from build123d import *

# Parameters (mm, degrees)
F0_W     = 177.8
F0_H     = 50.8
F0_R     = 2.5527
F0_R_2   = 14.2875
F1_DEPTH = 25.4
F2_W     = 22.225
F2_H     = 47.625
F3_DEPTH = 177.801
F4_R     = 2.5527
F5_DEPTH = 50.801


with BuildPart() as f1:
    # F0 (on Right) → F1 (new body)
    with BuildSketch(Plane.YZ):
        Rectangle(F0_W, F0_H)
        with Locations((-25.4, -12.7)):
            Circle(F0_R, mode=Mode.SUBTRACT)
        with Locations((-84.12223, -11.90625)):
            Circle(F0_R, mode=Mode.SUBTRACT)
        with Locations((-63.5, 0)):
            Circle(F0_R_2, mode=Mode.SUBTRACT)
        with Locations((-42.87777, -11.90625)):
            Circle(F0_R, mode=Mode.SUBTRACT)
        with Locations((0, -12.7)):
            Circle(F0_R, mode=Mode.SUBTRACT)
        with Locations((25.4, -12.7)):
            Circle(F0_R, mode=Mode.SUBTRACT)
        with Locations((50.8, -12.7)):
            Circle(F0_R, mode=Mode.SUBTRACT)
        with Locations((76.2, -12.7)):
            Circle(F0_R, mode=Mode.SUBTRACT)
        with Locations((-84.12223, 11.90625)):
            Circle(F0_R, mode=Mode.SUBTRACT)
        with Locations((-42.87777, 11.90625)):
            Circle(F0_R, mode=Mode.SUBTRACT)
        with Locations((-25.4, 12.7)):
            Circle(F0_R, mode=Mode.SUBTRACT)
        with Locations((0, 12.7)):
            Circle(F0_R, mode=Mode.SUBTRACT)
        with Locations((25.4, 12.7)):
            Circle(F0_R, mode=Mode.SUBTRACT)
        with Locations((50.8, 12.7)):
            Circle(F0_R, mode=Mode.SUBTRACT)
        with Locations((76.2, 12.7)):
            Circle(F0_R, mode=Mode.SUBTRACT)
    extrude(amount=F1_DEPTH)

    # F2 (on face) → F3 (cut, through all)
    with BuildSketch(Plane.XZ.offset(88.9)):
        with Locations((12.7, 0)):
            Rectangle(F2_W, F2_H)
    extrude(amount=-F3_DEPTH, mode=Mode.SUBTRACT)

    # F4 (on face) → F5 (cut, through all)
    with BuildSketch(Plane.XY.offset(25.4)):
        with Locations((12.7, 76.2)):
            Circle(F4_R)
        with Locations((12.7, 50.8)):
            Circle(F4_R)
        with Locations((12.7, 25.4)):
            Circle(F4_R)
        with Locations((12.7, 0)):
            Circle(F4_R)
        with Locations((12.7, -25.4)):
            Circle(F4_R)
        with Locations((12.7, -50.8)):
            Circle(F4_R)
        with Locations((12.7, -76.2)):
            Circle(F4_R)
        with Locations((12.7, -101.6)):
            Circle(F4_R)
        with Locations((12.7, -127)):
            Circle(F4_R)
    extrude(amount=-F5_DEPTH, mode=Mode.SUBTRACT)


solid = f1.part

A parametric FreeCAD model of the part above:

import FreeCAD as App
import Part
import Sketcher
from FreeCAD import Vector
Q = App.Units.Quantity

doc = App.newDocument("Part")
body = doc.addObject("PartDesign::Body", "Body")

sketch1 = doc.addObject("Sketcher::SketchObject", "Sketch")
body.addObject(sketch1)
sketch1.AttachmentSupport = (doc.YZ_Plane, [""])
sketch1.MapMode = "FlatFace"
sketch1.addGeometry([
    Part.LineSegment(Vector(-88.9, 25.4, 0), Vector(-88.9, -25.4, 0)),
    Part.LineSegment(Vector(-88.9, -25.4, 0), Vector(88.9, -25.4, 0)),
    Part.LineSegment(Vector(88.9, -25.4, 0), Vector(88.9, 25.4, 0)),
    Part.LineSegment(Vector(88.9, 25.4, 0), Vector(-88.9, 25.4, 0)),
    Part.Circle(Vector(-84.1, -11.9, 0), Vector(0, 0, 1), 2.6),
    Part.Circle(Vector(-42.9, -11.9, 0), Vector(0, 0, 1), 2.6),
    Part.Circle(Vector(-25.4, -12.7, 0), Vector(0, 0, 1), 2.6),
    Part.Circle(Vector(0, -12.7, 0), Vector(0, 0, 1), 2.6),
    Part.Circle(Vector(25.4, -12.7, 0), Vector(0, 0, 1), 2.6),
    Part.Circle(Vector(50.8, -12.7, 0), Vector(0, 0, 1), 2.6),
    Part.Circle(Vector(76.2, -12.7, 0), Vector(0, 0, 1), 2.6),
    Part.Circle(Vector(-63.5, 0, 0), Vector(0, 0, 1), 14.3),
    Part.Circle(Vector(-84.1, 11.9, 0), Vector(0, 0, 1), 2.6),
    Part.Circle(Vector(-42.9, 11.9, 0), Vector(0, 0, 1), 2.6),
    Part.Circle(Vector(-25.4, 12.7, 0), Vector(0, 0, 1), 2.6),
    Part.Circle(Vector(0, 12.7, 0), Vector(0, 0, 1), 2.6),
    Part.Circle(Vector(25.4, 12.7, 0), Vector(0, 0, 1), 2.6),
    Part.Circle(Vector(50.8, 12.7, 0), Vector(0, 0, 1), 2.6),
    Part.Circle(Vector(76.2, 12.7, 0), Vector(0, 0, 1), 2.6),
], False)
sketch1.addConstraint([
    Sketcher.Constraint("Coincident", 0, 2, 1, 1),
    Sketcher.Constraint("Coincident", 1, 2, 2, 1),
    Sketcher.Constraint("Coincident", 2, 2, 3, 1),
    Sketcher.Constraint("Coincident", 3, 2, 0, 1),
    Sketcher.Constraint("Vertical", 0),
    Sketcher.Constraint("Horizontal", 1),
    Sketcher.Constraint("Vertical", 2),
    Sketcher.Constraint("Horizontal", 3),
    Sketcher.Constraint("Equal", 4, 5),
    Sketcher.Constraint("Equal", 5, 6),
    Sketcher.Constraint("Equal", 6, 7),
    Sketcher.Constraint("Equal", 7, 8),
    Sketcher.Constraint("Equal", 8, 9),
    Sketcher.Constraint("Equal", 9, 10),
    Sketcher.Constraint("Equal", 10, 12),
    Sketcher.Constraint("Equal", 12, 13),
    Sketcher.Constraint("Equal", 13, 14),
    Sketcher.Constraint("Equal", 14, 15),
    Sketcher.Constraint("Equal", 15, 16),
    Sketcher.Constraint("Equal", 16, 17),
    Sketcher.Constraint("Equal", 17, 18),
    Sketcher.Constraint("Symmetric", 8, 3, 14, 3, -1, 1),
    Sketcher.Constraint("Symmetric", 7, 3, 15, 3, -1, 1),
    Sketcher.Constraint("Symmetric", 6, 3, 16, 3, -1, 1),
    Sketcher.Constraint("Symmetric", 0, 2, 2, 2, -1, 1),
    Sketcher.Constraint("Symmetric", 6, 3, 8, 3, -2),
    Sketcher.Constraint("Symmetric", 4, 3, 12, 3, -1),
    Sketcher.Constraint("Symmetric", 5, 3, 13, 3, -1),
    Sketcher.Constraint("Symmetric", 9, 3, 17, 3, -1),
    Sketcher.Constraint("Symmetric", 10, 3, 18, 3, -1),
    Sketcher.Constraint("PointOnObject", 7, 3, -2),
    Sketcher.Constraint("PointOnObject", 11, 3, -1),
    Sketcher.Constraint("Horizontal", 4, 3, 5, 3),
    Sketcher.Constraint("Horizontal", 6, 3, 7, 3),
    Sketcher.Constraint("Horizontal", 8, 3, 9, 3),
    Sketcher.Constraint("Horizontal", 9, 3, 10, 3),
    Sketcher.Constraint("DistanceX", 1, 1, 1, 2, Q("7 in")),
    Sketcher.Constraint("DistanceY", 0, 2, 0, 1, Q("2 in")),
    Sketcher.Constraint("Diameter", 4, Q("0.201 in")),
    Sketcher.Constraint("Diameter", 11, Q("1.125 in")),
    Sketcher.Constraint("DistanceX", 6, 3, -1, 1, Q("1 in")),
    Sketcher.Constraint("DistanceX", -1, 1, 9, 3, Q("2 in")),
    Sketcher.Constraint("DistanceX", -1, 1, 10, 3, Q("3 in")),
    Sketcher.Constraint("DistanceY", 6, 3, 14, 3, Q("1 in")),
    Sketcher.Constraint("DistanceX", 0, 2, 11, 3, Q("1 in")),
    Sketcher.Constraint("DistanceY", 4, 3, -1, 1, Q("0.46875 in")),
    Sketcher.Constraint("DistanceX", 4, 3, -1, 1, 84.12223),
    Sketcher.Constraint("DistanceX", 5, 3, -1, 1, 42.87777),
])
pad1 = doc.addObject("PartDesign::Pad", "Pad")
body.addObject(pad1)
pad1.Profile = sketch1
pad1.Length = Q("1 in")

sketch2 = doc.addObject("Sketcher::SketchObject", "Sketch001")
body.addObject(sketch2)
sketch2.AttachmentSupport = (doc.XZ_Plane, [""])
sketch2.MapMode = "FlatFace"
sketch2.AttachmentOffset = App.Placement(Vector(0, 0, 3.5 * 25.4), App.Rotation())
sketch2.addGeometry([
    Part.LineSegment(Vector(2, 24, 0), Vector(2, -24, 0)),
    Part.LineSegment(Vector(2, -24, 0), Vector(24, -24, 0)),
    Part.LineSegment(Vector(24, -24, 0), Vector(24, 24, 0)),
    Part.LineSegment(Vector(24, 24, 0), Vector(2, 24, 0)),
], False)
sketch2.addConstraint([
    Sketcher.Constraint("Coincident", 0, 2, 1, 1),
    Sketcher.Constraint("Coincident", 1, 2, 2, 1),
    Sketcher.Constraint("Coincident", 2, 2, 3, 1),
    Sketcher.Constraint("Coincident", 3, 2, 0, 1),
    Sketcher.Constraint("Vertical", 0),
    Sketcher.Constraint("Horizontal", 1),
    Sketcher.Constraint("Vertical", 2),
    Sketcher.Constraint("Horizontal", 3),
    Sketcher.Constraint("DistanceX", 1, 1, 1, 2, Q("0.875 in")),
    Sketcher.Constraint("DistanceY", 0, 2, 0, 1, Q("1.875 in")),
    Sketcher.Constraint("DistanceX", -1, 1, 0, 2, Q("0.0625 in")),
    Sketcher.Constraint("DistanceY", 0, 2, -1, 1, Q("0.9375 in")),
])
pocket1 = doc.addObject("PartDesign::Pocket", "Pocket")
body.addObject(pocket1)
pocket1.Profile = sketch2
pocket1.Type = "ThroughAll"

sketch3 = doc.addObject("Sketcher::SketchObject", "Sketch002")
body.addObject(sketch3)
sketch3.AttachmentSupport = (doc.XY_Plane, [""])
sketch3.MapMode = "FlatFace"
sketch3.AttachmentOffset = App.Placement(Vector(0, 0, 1 * 25.4), App.Rotation())
sketch3.addGeometry([
    Part.Circle(Vector(12.7, 76.2, 0), Vector(0, 0, 1), 2.6),
    Part.Circle(Vector(12.7, 50.8, 0), Vector(0, 0, 1), 2.6),
    Part.Circle(Vector(12.7, 25.4, 0), Vector(0, 0, 1), 2.6),
    Part.Circle(Vector(12.7, 0, 0), Vector(0, 0, 1), 2.6),
    Part.Circle(Vector(12.7, -25.4, 0), Vector(0, 0, 1), 2.6),
    Part.Circle(Vector(12.7, -50.8, 0), Vector(0, 0, 1), 2.6),
    Part.Circle(Vector(12.7, -76.2, 0), Vector(0, 0, 1), 2.6),
    Part.Circle(Vector(12.7, -101.6, 0), Vector(0, 0, 1), 2.6),
    Part.Circle(Vector(12.7, -127, 0), Vector(0, 0, 1), 2.6),
], False)
sketch3.addConstraint([
    Sketcher.Constraint("Equal", 0, 1),
    Sketcher.Constraint("Equal", 1, 2),
    Sketcher.Constraint("Equal", 2, 3),
    Sketcher.Constraint("Equal", 3, 4),
    Sketcher.Constraint("Equal", 4, 5),
    Sketcher.Constraint("Equal", 5, 6),
    Sketcher.Constraint("Equal", 6, 7),
    Sketcher.Constraint("Equal", 7, 8),
    Sketcher.Constraint("Symmetric", 2, 3, 4, 3, -1),
    Sketcher.Constraint("Symmetric", 1, 3, 5, 3, -1),
    Sketcher.Constraint("Symmetric", 0, 3, 6, 3, -1),
    Sketcher.Constraint("PointOnObject", 3, 3, -1),
    Sketcher.Constraint("Vertical", 0, 3, 1, 3),
    Sketcher.Constraint("Vertical", 1, 3, 2, 3),
    Sketcher.Constraint("Vertical", 2, 3, 3, 3),
    Sketcher.Constraint("Vertical", 6, 3, 7, 3),
    Sketcher.Constraint("Vertical", 7, 3, 8, 3),
    Sketcher.Constraint("Diameter", 0, Q("0.201 in")),
    Sketcher.Constraint("DistanceY", -1, 1, 0, 3, Q("3 in")),
    Sketcher.Constraint("DistanceY", -1, 1, 1, 3, Q("2 in")),
    Sketcher.Constraint("DistanceY", -1, 1, 2, 3, Q("1 in")),
    Sketcher.Constraint("DistanceY", 7, 3, -1, 1, Q("4 in")),
    Sketcher.Constraint("DistanceY", 8, 3, -1, 1, Q("5 in")),
    Sketcher.Constraint("DistanceX", -1, 1, 0, 3, Q("0.5 in")),
])
pocket2 = doc.addObject("PartDesign::Pocket", "Pocket001")
body.addObject(pocket2)
pocket2.Profile = sketch3
pocket2.Type = "ThroughAll"

doc.recompute()
